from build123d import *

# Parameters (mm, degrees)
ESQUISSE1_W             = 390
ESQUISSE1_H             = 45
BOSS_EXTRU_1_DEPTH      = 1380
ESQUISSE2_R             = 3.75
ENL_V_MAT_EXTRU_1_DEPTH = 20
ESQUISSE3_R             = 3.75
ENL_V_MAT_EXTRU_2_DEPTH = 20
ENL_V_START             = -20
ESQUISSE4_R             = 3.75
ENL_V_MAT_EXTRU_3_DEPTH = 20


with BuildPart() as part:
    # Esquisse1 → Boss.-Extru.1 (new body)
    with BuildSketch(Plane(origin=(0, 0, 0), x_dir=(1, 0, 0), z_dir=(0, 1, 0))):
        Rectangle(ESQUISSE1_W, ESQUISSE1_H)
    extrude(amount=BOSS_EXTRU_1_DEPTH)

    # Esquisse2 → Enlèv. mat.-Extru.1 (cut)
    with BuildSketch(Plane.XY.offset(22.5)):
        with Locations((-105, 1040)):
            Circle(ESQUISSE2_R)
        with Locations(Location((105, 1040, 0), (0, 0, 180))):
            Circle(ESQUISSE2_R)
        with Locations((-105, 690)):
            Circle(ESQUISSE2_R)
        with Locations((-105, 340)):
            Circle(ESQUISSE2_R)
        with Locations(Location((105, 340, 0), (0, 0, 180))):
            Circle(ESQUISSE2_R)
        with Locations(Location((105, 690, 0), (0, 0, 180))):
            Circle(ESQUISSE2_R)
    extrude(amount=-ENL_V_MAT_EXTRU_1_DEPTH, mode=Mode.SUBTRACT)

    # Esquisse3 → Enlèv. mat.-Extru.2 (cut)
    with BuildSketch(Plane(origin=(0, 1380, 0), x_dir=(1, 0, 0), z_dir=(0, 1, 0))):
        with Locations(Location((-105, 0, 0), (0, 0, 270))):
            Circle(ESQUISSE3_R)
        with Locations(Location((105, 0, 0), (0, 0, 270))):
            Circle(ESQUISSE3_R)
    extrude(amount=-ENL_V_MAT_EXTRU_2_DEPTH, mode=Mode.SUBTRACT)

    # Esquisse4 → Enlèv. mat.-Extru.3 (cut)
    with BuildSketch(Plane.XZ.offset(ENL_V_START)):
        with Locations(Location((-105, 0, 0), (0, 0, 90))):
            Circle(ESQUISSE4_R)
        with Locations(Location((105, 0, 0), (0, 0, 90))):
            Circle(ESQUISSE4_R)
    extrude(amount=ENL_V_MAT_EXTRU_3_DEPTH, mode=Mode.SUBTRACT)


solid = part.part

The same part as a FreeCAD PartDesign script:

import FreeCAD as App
import Part
import Sketcher

V = App.Vector
Q = App.Units.Quantity

doc = App.newDocument("Part")
body = doc.addObject("PartDesign::Body", "Body")

sketch1 = body.newObject("Sketcher::SketchObject", "Sketch")
sketch1.AttachmentSupport = (doc.getObject("XZ_Plane"), [""])
sketch1.MapMode = "FlatFace"
sketch1.addGeometry([
    Part.LineSegment(V(-195, -22.5, 0), V(-195, 22.5, 0)),
    Part.LineSegment(V(-195, 22.5, 0), V(195, 22.5, 0)),
    Part.LineSegment(V(195, 22.5, 0), V(195, -22.5, 0)),
    Part.LineSegment(V(195, -22.5, 0), V(-195, -22.5, 0)),
], False)
sketch1.addConstraint([
    Sketcher.Constraint("Coincident", 0, 2, 1, 1),
    Sketcher.Constraint("Coincident", 1, 2, 2, 1),
    Sketcher.Constraint("Coincident", 2, 2, 3, 1),
    Sketcher.Constraint("Coincident", 3, 2, 0, 1),
    Sketcher.Constraint("Vertical", 0),
    Sketcher.Constraint("Horizontal", 1),
    Sketcher.Constraint("Vertical", 2),
    Sketcher.Constraint("Horizontal", 3),
    Sketcher.Constraint("Symmetric", 0, 2, 2, 2, -1, 1),
    Sketcher.Constraint("DistanceX", 1, 1, 1, 2, Q("390 mm")),
    Sketcher.Constraint("DistanceY", 0, 1, 0, 2, Q("45 mm")),
])
pad1 = body.newObject("PartDesign::Pad", "Pad")
pad1.Profile = sketch1
pad1.Length = 1380
pad1.Reversed = True

sketch2 = body.newObject("Sketcher::SketchObject", "Sketch001")
sketch2.AttachmentSupport = (doc.getObject("XY_Plane"), [""])
sketch2.MapMode = "FlatFace"
sketch2.AttachmentOffset = App.Placement(V(0, 0, 22.5), App.Rotation())
sketch2.addGeometry([
    Part.Circle(V(-105, 1040, 0), V(0, 0, 1), 3.75),
    Part.Circle(V(105, 1040, 0), V(0, 0, 1), 3.75),
    Part.Circle(V(-105, 690, 0), V(0, 0, 1), 3.75),
    Part.Circle(V(-105, 340, 0), V(0, 0, 1), 3.75),
    Part.Circle(V(105, 340, 0), V(0, 0, 1), 3.75),
    Part.Circle(V(105, 690, 0), V(0, 0, 1), 3.75),
], False)
sketch2.addConstraint([
    Sketcher.Constraint("Equal", 0, 1),
    Sketcher.Constraint("Equal", 1, 2),
    Sketcher.Constraint("Equal", 2, 3),
    Sketcher.Constraint("Equal", 3, 4),
    Sketcher.Constraint("Equal", 4, 5),
    Sketcher.Constraint("Symmetric", 0, 3, 1, 3, -2),
    Sketcher.Constraint("Symmetric", 3, 3, 4, 3, -2),
    Sketcher.Constraint("Symmetric", 2, 3, 5, 3, -2),
    Sketcher.Constraint("Vertical", 0, 3, 2, 3),
    Sketcher.Constraint("Vertical", 2, 3, 3, 3),
    Sketcher.Constraint("Diameter", 0, Q("7.5 mm")),
    Sketcher.Constraint("DistanceX", 0, 3, -1, 1, Q("105 mm")),
    Sketcher.Constraint("DistanceY", -1, 1, 0, 3, Q("1040 mm")),
    Sketcher.Constraint("DistanceY", -1, 1, 2, 3, Q("690 mm")),
    Sketcher.Constraint("DistanceY", -1, 1, 3, 3, Q("340 mm")),
])
pocket1 = body.newObject("PartDesign::Pocket", "Pocket")
pocket1.Profile = sketch2
pocket1.Length = 20

sketch3 = body.newObject("Sketcher::SketchObject", "Sketch002")
sketch3.AttachmentSupport = (doc.getObject("XZ_Plane"), [""])
sketch3.MapMode = "FlatFace"
sketch3.AttachmentOffset = App.Placement(V(0, 0, -1380), App.Rotation())
sketch3.addGeometry([
    Part.Circle(V(-105, 0, 0), V(0, 0, 1), 3.75),
    Part.Circle(V(105, 0, 0), V(0, 0, 1), 3.75),
], False)
sketch3.addConstraint([
    Sketcher.Constraint("Equal", 0, 1),
    Sketcher.Constraint("Symmetric", 0, 3, 1, 3, -1, 1),
    Sketcher.Constraint("PointOnObject", 0, 3, -1),
    Sketcher.Constraint("Diameter", 0, Q("7.5 mm")),
    Sketcher.Constraint("DistanceX", 0, 3, -1, 1, Q("105 mm")),
])
pocket2 = body.newObject("PartDesign::Pocket", "Pocket001")
pocket2.Profile = sketch3
pocket2.Length = 20
pocket2.Reversed = True

sketch4 = body.newObject("Sketcher::SketchObject", "Sketch003")
sketch4.AttachmentSupport = (doc.getObject("XZ_Plane"), [""])
sketch4.MapMode = "FlatFace"
sketch4.AttachmentOffset = App.Placement(V(0, 0, -20), App.Rotation())
sketch4.addGeometry([
    Part.Circle(V(-105, 0, 0), V(0, 0, 1), 3.75),
    Part.Circle(V(105, 0, 0), V(0, 0, 1), 3.75),
], False)
sketch4.addConstraint([
    Sketcher.Constraint("Equal", 0, 1),
    Sketcher.Constraint("Symmetric", 0, 3, 1, 3, -1, 1),
    Sketcher.Constraint("PointOnObject", 0, 3, -1),
    Sketcher.Constraint("Diameter", 0, Q("7.5 mm")),
    Sketcher.Constraint("DistanceX", 0, 3, -1, 1, Q("105 mm")),
])
pocket3 = body.newObject("PartDesign::Pocket", "Pocket002")
pocket3.Profile = sketch4
pocket3.Length = 20
pocket3.Reversed = True

doc.recompute()
